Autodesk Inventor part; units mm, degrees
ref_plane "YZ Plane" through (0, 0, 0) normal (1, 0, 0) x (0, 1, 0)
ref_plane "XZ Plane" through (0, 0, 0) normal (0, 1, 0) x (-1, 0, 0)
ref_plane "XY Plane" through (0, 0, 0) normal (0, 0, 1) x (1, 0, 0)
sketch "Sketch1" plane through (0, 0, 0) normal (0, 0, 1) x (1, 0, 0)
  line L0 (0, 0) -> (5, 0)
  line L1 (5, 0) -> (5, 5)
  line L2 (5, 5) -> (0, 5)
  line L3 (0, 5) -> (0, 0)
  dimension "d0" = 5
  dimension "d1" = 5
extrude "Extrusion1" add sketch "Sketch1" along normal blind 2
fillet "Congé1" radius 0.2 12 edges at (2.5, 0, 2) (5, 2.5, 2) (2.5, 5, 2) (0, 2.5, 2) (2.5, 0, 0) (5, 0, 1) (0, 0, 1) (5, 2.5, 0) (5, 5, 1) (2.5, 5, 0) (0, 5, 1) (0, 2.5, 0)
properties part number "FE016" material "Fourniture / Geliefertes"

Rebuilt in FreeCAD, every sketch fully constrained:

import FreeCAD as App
import Part
import Sketcher

doc = App.newDocument("Part")
params = doc.addObject("Spreadsheet::Sheet", "Params")
for row, (alias, value) in enumerate([
    ("sketch1_width", "5 mm"),
    ("pad1_length", "2 mm"),
    ("fillet_radius", "0.2 mm"),
], start=1):
    params.set(f"A{row}", alias)
    params.set(f"B{row}", "=" + value)
    params.setAlias(f"B{row}", alias)

body = doc.addObject("PartDesign::Body", "Body")

# Sketch on XY plane
sketch1 = body.newObject("Sketcher::SketchObject", "Sketch")
sketch1.AttachmentSupport = (doc.getObject("XY_Plane"), [""])
sketch1.MapMode = "FlatFace"
sketch1.addGeometry(Part.LineSegment(App.Vector(0, 5, 0), App.Vector(0, 0, 0)), False)
sketch1.addGeometry(Part.LineSegment(App.Vector(0, 0, 0), App.Vector(5, 0, 0)), False)
sketch1.addGeometry(Part.LineSegment(App.Vector(5, 0, 0), App.Vector(5, 5, 0)), False)
sketch1.addGeometry(Part.LineSegment(App.Vector(5, 5, 0), App.Vector(0, 5, 0)), False)
sketch1.addConstraint(Sketcher.Constraint("Coincident", 0, 2, 1, 1))
sketch1.addConstraint(Sketcher.Constraint("Coincident", 1, 2, 2, 1))
sketch1.addConstraint(Sketcher.Constraint("Coincident", 2, 2, 3, 1))
sketch1.addConstraint(Sketcher.Constraint("Coincident", 3, 2, 0, 1))
sketch1.addConstraint(Sketcher.Constraint("Vertical", 0))
sketch1.addConstraint(Sketcher.Constraint("Horizontal", 1))
sketch1.addConstraint(Sketcher.Constraint("Vertical", 2))
sketch1.addConstraint(Sketcher.Constraint("Horizontal", 3))
sketch1.addConstraint(Sketcher.Constraint("Coincident", 0, 2, -1, 1))
sketch1.addConstraint(Sketcher.Constraint("Equal", 3, 0))
sketch1.addConstraint(Sketcher.Constraint("DistanceX", 1, 1, 1, 2, 5.0))
sketch1.setExpression("Constraints[10]", "Params.sketch1_width")
pad1 = body.newObject("PartDesign::Pad", "Pad")
pad1.Profile = sketch1
pad1.setExpression("Length", "Params.pad1_length")
doc.recompute()

fillet = body.newObject("PartDesign::Fillet", "Fillet")
fillet.Base = (pad1, ["Edge1"])
fillet.UseAllEdges = True
fillet.setExpression("Radius", "Params.fillet_radius")

doc.recompute()
